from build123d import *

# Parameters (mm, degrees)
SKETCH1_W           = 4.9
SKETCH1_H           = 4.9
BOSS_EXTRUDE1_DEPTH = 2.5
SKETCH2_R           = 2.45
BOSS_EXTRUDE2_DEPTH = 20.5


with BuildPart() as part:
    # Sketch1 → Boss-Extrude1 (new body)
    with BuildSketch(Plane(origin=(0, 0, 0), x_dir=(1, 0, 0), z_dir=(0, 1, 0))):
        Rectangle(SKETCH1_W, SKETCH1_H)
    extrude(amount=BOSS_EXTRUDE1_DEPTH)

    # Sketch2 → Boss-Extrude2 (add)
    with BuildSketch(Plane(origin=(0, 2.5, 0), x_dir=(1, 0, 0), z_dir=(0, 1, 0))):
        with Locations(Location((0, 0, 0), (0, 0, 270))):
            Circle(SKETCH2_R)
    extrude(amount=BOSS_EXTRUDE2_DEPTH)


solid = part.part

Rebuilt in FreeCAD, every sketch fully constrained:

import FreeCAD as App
import Part
import Sketcher


def add_polygon(sketch, points):
    """Adds a closed chain of lines whose ends are joined by coincident constraints."""
    first, n = sketch.GeometryCount, len(points)
    for a, b in zip(points, points[1:] + points[:1]):
        sketch.addGeometry(Part.LineSegment(App.Vector(*a, 0), App.Vector(*b, 0)), False)
    for i in range(n):
        sketch.addConstraint(Sketcher.Constraint("Coincident", first + i, 2, first + (i + 1) % n, 1))

doc = App.newDocument("Part")
params = doc.addObject("Spreadsheet::Sheet", "Params")
for row, (alias, value) in enumerate([
    ("sketch1_width", "4.9 mm"),
    ("pad1_length", "2.5 mm"),
    ("sketch2_diameter", "4.9 mm"),
    ("pad2_length", "20.5 mm"),
], start=1):
    params.set(f"A{row}", alias)
    params.set(f"B{row}", "=" + value)
    params.setAlias(f"B{row}", alias)

body = doc.addObject("PartDesign::Body", "Body")

sketch1 = body.newObject("Sketcher::SketchObject", "Sketch")
sketch1.AttachmentSupport = (doc.getObject("XZ_Plane"), [""])
sketch1.MapMode = "FlatFace"
add_polygon(sketch1, [(-2.45, -2.45), (-2.45, 2.45), (2.45, 2.45), (2.45, -2.45)])
sketch1.addConstraint(Sketcher.Constraint("Vertical", 0))
sketch1.addConstraint(Sketcher.Constraint("Horizontal", 1))
sketch1.addConstraint(Sketcher.Constraint("Vertical", 2))
sketch1.addConstraint(Sketcher.Constraint("Horizontal", 3))
sketch1.addConstraint(Sketcher.Constraint("Symmetric", 0, 2, 2, 2, -1, 1))
sketch1.addConstraint(Sketcher.Constraint("Equal", 3, 0))
sketch1.addConstraint(Sketcher.Constraint("DistanceX", 1, 1, 1, 2, 4.9))
sketch1.setExpression("Constraints[10]", "Params.sketch1_width")
pad1 = body.newObject("PartDesign::Pad", "Pad")
pad1.Profile = sketch1
pad1.setExpression("Length", "Params.pad1_length")
pad1.Reversed = True

sketch2 = body.newObject("Sketcher::SketchObject", "Sketch001")
sketch2.AttachmentSupport = (doc.getObject("XZ_Plane"), [""])
sketch2.MapMode = "FlatFace"
sketch2.AttachmentOffset = App.Placement(App.Vector(0, 0, -2.5), App.Rotation())
sketch2.addGeometry(Part.Circle(App.Vector(0, 0, 0), App.Vector(0, 0, 1), 2.45), False)
sketch2.addConstraint(Sketcher.Constraint("Coincident", 0, 3, -1, 1))
sketch2.addConstraint(Sketcher.Constraint("Diameter", 0, 4.9))
sketch2.setExpression("Constraints[1]", "Params.sketch2_diameter")
pad2 = body.newObject("PartDesign::Pad", "Pad001")
pad2.Profile = sketch2
pad2.setExpression("Length", "Params.pad2_length")
pad2.Reversed = True

doc.recompute()
